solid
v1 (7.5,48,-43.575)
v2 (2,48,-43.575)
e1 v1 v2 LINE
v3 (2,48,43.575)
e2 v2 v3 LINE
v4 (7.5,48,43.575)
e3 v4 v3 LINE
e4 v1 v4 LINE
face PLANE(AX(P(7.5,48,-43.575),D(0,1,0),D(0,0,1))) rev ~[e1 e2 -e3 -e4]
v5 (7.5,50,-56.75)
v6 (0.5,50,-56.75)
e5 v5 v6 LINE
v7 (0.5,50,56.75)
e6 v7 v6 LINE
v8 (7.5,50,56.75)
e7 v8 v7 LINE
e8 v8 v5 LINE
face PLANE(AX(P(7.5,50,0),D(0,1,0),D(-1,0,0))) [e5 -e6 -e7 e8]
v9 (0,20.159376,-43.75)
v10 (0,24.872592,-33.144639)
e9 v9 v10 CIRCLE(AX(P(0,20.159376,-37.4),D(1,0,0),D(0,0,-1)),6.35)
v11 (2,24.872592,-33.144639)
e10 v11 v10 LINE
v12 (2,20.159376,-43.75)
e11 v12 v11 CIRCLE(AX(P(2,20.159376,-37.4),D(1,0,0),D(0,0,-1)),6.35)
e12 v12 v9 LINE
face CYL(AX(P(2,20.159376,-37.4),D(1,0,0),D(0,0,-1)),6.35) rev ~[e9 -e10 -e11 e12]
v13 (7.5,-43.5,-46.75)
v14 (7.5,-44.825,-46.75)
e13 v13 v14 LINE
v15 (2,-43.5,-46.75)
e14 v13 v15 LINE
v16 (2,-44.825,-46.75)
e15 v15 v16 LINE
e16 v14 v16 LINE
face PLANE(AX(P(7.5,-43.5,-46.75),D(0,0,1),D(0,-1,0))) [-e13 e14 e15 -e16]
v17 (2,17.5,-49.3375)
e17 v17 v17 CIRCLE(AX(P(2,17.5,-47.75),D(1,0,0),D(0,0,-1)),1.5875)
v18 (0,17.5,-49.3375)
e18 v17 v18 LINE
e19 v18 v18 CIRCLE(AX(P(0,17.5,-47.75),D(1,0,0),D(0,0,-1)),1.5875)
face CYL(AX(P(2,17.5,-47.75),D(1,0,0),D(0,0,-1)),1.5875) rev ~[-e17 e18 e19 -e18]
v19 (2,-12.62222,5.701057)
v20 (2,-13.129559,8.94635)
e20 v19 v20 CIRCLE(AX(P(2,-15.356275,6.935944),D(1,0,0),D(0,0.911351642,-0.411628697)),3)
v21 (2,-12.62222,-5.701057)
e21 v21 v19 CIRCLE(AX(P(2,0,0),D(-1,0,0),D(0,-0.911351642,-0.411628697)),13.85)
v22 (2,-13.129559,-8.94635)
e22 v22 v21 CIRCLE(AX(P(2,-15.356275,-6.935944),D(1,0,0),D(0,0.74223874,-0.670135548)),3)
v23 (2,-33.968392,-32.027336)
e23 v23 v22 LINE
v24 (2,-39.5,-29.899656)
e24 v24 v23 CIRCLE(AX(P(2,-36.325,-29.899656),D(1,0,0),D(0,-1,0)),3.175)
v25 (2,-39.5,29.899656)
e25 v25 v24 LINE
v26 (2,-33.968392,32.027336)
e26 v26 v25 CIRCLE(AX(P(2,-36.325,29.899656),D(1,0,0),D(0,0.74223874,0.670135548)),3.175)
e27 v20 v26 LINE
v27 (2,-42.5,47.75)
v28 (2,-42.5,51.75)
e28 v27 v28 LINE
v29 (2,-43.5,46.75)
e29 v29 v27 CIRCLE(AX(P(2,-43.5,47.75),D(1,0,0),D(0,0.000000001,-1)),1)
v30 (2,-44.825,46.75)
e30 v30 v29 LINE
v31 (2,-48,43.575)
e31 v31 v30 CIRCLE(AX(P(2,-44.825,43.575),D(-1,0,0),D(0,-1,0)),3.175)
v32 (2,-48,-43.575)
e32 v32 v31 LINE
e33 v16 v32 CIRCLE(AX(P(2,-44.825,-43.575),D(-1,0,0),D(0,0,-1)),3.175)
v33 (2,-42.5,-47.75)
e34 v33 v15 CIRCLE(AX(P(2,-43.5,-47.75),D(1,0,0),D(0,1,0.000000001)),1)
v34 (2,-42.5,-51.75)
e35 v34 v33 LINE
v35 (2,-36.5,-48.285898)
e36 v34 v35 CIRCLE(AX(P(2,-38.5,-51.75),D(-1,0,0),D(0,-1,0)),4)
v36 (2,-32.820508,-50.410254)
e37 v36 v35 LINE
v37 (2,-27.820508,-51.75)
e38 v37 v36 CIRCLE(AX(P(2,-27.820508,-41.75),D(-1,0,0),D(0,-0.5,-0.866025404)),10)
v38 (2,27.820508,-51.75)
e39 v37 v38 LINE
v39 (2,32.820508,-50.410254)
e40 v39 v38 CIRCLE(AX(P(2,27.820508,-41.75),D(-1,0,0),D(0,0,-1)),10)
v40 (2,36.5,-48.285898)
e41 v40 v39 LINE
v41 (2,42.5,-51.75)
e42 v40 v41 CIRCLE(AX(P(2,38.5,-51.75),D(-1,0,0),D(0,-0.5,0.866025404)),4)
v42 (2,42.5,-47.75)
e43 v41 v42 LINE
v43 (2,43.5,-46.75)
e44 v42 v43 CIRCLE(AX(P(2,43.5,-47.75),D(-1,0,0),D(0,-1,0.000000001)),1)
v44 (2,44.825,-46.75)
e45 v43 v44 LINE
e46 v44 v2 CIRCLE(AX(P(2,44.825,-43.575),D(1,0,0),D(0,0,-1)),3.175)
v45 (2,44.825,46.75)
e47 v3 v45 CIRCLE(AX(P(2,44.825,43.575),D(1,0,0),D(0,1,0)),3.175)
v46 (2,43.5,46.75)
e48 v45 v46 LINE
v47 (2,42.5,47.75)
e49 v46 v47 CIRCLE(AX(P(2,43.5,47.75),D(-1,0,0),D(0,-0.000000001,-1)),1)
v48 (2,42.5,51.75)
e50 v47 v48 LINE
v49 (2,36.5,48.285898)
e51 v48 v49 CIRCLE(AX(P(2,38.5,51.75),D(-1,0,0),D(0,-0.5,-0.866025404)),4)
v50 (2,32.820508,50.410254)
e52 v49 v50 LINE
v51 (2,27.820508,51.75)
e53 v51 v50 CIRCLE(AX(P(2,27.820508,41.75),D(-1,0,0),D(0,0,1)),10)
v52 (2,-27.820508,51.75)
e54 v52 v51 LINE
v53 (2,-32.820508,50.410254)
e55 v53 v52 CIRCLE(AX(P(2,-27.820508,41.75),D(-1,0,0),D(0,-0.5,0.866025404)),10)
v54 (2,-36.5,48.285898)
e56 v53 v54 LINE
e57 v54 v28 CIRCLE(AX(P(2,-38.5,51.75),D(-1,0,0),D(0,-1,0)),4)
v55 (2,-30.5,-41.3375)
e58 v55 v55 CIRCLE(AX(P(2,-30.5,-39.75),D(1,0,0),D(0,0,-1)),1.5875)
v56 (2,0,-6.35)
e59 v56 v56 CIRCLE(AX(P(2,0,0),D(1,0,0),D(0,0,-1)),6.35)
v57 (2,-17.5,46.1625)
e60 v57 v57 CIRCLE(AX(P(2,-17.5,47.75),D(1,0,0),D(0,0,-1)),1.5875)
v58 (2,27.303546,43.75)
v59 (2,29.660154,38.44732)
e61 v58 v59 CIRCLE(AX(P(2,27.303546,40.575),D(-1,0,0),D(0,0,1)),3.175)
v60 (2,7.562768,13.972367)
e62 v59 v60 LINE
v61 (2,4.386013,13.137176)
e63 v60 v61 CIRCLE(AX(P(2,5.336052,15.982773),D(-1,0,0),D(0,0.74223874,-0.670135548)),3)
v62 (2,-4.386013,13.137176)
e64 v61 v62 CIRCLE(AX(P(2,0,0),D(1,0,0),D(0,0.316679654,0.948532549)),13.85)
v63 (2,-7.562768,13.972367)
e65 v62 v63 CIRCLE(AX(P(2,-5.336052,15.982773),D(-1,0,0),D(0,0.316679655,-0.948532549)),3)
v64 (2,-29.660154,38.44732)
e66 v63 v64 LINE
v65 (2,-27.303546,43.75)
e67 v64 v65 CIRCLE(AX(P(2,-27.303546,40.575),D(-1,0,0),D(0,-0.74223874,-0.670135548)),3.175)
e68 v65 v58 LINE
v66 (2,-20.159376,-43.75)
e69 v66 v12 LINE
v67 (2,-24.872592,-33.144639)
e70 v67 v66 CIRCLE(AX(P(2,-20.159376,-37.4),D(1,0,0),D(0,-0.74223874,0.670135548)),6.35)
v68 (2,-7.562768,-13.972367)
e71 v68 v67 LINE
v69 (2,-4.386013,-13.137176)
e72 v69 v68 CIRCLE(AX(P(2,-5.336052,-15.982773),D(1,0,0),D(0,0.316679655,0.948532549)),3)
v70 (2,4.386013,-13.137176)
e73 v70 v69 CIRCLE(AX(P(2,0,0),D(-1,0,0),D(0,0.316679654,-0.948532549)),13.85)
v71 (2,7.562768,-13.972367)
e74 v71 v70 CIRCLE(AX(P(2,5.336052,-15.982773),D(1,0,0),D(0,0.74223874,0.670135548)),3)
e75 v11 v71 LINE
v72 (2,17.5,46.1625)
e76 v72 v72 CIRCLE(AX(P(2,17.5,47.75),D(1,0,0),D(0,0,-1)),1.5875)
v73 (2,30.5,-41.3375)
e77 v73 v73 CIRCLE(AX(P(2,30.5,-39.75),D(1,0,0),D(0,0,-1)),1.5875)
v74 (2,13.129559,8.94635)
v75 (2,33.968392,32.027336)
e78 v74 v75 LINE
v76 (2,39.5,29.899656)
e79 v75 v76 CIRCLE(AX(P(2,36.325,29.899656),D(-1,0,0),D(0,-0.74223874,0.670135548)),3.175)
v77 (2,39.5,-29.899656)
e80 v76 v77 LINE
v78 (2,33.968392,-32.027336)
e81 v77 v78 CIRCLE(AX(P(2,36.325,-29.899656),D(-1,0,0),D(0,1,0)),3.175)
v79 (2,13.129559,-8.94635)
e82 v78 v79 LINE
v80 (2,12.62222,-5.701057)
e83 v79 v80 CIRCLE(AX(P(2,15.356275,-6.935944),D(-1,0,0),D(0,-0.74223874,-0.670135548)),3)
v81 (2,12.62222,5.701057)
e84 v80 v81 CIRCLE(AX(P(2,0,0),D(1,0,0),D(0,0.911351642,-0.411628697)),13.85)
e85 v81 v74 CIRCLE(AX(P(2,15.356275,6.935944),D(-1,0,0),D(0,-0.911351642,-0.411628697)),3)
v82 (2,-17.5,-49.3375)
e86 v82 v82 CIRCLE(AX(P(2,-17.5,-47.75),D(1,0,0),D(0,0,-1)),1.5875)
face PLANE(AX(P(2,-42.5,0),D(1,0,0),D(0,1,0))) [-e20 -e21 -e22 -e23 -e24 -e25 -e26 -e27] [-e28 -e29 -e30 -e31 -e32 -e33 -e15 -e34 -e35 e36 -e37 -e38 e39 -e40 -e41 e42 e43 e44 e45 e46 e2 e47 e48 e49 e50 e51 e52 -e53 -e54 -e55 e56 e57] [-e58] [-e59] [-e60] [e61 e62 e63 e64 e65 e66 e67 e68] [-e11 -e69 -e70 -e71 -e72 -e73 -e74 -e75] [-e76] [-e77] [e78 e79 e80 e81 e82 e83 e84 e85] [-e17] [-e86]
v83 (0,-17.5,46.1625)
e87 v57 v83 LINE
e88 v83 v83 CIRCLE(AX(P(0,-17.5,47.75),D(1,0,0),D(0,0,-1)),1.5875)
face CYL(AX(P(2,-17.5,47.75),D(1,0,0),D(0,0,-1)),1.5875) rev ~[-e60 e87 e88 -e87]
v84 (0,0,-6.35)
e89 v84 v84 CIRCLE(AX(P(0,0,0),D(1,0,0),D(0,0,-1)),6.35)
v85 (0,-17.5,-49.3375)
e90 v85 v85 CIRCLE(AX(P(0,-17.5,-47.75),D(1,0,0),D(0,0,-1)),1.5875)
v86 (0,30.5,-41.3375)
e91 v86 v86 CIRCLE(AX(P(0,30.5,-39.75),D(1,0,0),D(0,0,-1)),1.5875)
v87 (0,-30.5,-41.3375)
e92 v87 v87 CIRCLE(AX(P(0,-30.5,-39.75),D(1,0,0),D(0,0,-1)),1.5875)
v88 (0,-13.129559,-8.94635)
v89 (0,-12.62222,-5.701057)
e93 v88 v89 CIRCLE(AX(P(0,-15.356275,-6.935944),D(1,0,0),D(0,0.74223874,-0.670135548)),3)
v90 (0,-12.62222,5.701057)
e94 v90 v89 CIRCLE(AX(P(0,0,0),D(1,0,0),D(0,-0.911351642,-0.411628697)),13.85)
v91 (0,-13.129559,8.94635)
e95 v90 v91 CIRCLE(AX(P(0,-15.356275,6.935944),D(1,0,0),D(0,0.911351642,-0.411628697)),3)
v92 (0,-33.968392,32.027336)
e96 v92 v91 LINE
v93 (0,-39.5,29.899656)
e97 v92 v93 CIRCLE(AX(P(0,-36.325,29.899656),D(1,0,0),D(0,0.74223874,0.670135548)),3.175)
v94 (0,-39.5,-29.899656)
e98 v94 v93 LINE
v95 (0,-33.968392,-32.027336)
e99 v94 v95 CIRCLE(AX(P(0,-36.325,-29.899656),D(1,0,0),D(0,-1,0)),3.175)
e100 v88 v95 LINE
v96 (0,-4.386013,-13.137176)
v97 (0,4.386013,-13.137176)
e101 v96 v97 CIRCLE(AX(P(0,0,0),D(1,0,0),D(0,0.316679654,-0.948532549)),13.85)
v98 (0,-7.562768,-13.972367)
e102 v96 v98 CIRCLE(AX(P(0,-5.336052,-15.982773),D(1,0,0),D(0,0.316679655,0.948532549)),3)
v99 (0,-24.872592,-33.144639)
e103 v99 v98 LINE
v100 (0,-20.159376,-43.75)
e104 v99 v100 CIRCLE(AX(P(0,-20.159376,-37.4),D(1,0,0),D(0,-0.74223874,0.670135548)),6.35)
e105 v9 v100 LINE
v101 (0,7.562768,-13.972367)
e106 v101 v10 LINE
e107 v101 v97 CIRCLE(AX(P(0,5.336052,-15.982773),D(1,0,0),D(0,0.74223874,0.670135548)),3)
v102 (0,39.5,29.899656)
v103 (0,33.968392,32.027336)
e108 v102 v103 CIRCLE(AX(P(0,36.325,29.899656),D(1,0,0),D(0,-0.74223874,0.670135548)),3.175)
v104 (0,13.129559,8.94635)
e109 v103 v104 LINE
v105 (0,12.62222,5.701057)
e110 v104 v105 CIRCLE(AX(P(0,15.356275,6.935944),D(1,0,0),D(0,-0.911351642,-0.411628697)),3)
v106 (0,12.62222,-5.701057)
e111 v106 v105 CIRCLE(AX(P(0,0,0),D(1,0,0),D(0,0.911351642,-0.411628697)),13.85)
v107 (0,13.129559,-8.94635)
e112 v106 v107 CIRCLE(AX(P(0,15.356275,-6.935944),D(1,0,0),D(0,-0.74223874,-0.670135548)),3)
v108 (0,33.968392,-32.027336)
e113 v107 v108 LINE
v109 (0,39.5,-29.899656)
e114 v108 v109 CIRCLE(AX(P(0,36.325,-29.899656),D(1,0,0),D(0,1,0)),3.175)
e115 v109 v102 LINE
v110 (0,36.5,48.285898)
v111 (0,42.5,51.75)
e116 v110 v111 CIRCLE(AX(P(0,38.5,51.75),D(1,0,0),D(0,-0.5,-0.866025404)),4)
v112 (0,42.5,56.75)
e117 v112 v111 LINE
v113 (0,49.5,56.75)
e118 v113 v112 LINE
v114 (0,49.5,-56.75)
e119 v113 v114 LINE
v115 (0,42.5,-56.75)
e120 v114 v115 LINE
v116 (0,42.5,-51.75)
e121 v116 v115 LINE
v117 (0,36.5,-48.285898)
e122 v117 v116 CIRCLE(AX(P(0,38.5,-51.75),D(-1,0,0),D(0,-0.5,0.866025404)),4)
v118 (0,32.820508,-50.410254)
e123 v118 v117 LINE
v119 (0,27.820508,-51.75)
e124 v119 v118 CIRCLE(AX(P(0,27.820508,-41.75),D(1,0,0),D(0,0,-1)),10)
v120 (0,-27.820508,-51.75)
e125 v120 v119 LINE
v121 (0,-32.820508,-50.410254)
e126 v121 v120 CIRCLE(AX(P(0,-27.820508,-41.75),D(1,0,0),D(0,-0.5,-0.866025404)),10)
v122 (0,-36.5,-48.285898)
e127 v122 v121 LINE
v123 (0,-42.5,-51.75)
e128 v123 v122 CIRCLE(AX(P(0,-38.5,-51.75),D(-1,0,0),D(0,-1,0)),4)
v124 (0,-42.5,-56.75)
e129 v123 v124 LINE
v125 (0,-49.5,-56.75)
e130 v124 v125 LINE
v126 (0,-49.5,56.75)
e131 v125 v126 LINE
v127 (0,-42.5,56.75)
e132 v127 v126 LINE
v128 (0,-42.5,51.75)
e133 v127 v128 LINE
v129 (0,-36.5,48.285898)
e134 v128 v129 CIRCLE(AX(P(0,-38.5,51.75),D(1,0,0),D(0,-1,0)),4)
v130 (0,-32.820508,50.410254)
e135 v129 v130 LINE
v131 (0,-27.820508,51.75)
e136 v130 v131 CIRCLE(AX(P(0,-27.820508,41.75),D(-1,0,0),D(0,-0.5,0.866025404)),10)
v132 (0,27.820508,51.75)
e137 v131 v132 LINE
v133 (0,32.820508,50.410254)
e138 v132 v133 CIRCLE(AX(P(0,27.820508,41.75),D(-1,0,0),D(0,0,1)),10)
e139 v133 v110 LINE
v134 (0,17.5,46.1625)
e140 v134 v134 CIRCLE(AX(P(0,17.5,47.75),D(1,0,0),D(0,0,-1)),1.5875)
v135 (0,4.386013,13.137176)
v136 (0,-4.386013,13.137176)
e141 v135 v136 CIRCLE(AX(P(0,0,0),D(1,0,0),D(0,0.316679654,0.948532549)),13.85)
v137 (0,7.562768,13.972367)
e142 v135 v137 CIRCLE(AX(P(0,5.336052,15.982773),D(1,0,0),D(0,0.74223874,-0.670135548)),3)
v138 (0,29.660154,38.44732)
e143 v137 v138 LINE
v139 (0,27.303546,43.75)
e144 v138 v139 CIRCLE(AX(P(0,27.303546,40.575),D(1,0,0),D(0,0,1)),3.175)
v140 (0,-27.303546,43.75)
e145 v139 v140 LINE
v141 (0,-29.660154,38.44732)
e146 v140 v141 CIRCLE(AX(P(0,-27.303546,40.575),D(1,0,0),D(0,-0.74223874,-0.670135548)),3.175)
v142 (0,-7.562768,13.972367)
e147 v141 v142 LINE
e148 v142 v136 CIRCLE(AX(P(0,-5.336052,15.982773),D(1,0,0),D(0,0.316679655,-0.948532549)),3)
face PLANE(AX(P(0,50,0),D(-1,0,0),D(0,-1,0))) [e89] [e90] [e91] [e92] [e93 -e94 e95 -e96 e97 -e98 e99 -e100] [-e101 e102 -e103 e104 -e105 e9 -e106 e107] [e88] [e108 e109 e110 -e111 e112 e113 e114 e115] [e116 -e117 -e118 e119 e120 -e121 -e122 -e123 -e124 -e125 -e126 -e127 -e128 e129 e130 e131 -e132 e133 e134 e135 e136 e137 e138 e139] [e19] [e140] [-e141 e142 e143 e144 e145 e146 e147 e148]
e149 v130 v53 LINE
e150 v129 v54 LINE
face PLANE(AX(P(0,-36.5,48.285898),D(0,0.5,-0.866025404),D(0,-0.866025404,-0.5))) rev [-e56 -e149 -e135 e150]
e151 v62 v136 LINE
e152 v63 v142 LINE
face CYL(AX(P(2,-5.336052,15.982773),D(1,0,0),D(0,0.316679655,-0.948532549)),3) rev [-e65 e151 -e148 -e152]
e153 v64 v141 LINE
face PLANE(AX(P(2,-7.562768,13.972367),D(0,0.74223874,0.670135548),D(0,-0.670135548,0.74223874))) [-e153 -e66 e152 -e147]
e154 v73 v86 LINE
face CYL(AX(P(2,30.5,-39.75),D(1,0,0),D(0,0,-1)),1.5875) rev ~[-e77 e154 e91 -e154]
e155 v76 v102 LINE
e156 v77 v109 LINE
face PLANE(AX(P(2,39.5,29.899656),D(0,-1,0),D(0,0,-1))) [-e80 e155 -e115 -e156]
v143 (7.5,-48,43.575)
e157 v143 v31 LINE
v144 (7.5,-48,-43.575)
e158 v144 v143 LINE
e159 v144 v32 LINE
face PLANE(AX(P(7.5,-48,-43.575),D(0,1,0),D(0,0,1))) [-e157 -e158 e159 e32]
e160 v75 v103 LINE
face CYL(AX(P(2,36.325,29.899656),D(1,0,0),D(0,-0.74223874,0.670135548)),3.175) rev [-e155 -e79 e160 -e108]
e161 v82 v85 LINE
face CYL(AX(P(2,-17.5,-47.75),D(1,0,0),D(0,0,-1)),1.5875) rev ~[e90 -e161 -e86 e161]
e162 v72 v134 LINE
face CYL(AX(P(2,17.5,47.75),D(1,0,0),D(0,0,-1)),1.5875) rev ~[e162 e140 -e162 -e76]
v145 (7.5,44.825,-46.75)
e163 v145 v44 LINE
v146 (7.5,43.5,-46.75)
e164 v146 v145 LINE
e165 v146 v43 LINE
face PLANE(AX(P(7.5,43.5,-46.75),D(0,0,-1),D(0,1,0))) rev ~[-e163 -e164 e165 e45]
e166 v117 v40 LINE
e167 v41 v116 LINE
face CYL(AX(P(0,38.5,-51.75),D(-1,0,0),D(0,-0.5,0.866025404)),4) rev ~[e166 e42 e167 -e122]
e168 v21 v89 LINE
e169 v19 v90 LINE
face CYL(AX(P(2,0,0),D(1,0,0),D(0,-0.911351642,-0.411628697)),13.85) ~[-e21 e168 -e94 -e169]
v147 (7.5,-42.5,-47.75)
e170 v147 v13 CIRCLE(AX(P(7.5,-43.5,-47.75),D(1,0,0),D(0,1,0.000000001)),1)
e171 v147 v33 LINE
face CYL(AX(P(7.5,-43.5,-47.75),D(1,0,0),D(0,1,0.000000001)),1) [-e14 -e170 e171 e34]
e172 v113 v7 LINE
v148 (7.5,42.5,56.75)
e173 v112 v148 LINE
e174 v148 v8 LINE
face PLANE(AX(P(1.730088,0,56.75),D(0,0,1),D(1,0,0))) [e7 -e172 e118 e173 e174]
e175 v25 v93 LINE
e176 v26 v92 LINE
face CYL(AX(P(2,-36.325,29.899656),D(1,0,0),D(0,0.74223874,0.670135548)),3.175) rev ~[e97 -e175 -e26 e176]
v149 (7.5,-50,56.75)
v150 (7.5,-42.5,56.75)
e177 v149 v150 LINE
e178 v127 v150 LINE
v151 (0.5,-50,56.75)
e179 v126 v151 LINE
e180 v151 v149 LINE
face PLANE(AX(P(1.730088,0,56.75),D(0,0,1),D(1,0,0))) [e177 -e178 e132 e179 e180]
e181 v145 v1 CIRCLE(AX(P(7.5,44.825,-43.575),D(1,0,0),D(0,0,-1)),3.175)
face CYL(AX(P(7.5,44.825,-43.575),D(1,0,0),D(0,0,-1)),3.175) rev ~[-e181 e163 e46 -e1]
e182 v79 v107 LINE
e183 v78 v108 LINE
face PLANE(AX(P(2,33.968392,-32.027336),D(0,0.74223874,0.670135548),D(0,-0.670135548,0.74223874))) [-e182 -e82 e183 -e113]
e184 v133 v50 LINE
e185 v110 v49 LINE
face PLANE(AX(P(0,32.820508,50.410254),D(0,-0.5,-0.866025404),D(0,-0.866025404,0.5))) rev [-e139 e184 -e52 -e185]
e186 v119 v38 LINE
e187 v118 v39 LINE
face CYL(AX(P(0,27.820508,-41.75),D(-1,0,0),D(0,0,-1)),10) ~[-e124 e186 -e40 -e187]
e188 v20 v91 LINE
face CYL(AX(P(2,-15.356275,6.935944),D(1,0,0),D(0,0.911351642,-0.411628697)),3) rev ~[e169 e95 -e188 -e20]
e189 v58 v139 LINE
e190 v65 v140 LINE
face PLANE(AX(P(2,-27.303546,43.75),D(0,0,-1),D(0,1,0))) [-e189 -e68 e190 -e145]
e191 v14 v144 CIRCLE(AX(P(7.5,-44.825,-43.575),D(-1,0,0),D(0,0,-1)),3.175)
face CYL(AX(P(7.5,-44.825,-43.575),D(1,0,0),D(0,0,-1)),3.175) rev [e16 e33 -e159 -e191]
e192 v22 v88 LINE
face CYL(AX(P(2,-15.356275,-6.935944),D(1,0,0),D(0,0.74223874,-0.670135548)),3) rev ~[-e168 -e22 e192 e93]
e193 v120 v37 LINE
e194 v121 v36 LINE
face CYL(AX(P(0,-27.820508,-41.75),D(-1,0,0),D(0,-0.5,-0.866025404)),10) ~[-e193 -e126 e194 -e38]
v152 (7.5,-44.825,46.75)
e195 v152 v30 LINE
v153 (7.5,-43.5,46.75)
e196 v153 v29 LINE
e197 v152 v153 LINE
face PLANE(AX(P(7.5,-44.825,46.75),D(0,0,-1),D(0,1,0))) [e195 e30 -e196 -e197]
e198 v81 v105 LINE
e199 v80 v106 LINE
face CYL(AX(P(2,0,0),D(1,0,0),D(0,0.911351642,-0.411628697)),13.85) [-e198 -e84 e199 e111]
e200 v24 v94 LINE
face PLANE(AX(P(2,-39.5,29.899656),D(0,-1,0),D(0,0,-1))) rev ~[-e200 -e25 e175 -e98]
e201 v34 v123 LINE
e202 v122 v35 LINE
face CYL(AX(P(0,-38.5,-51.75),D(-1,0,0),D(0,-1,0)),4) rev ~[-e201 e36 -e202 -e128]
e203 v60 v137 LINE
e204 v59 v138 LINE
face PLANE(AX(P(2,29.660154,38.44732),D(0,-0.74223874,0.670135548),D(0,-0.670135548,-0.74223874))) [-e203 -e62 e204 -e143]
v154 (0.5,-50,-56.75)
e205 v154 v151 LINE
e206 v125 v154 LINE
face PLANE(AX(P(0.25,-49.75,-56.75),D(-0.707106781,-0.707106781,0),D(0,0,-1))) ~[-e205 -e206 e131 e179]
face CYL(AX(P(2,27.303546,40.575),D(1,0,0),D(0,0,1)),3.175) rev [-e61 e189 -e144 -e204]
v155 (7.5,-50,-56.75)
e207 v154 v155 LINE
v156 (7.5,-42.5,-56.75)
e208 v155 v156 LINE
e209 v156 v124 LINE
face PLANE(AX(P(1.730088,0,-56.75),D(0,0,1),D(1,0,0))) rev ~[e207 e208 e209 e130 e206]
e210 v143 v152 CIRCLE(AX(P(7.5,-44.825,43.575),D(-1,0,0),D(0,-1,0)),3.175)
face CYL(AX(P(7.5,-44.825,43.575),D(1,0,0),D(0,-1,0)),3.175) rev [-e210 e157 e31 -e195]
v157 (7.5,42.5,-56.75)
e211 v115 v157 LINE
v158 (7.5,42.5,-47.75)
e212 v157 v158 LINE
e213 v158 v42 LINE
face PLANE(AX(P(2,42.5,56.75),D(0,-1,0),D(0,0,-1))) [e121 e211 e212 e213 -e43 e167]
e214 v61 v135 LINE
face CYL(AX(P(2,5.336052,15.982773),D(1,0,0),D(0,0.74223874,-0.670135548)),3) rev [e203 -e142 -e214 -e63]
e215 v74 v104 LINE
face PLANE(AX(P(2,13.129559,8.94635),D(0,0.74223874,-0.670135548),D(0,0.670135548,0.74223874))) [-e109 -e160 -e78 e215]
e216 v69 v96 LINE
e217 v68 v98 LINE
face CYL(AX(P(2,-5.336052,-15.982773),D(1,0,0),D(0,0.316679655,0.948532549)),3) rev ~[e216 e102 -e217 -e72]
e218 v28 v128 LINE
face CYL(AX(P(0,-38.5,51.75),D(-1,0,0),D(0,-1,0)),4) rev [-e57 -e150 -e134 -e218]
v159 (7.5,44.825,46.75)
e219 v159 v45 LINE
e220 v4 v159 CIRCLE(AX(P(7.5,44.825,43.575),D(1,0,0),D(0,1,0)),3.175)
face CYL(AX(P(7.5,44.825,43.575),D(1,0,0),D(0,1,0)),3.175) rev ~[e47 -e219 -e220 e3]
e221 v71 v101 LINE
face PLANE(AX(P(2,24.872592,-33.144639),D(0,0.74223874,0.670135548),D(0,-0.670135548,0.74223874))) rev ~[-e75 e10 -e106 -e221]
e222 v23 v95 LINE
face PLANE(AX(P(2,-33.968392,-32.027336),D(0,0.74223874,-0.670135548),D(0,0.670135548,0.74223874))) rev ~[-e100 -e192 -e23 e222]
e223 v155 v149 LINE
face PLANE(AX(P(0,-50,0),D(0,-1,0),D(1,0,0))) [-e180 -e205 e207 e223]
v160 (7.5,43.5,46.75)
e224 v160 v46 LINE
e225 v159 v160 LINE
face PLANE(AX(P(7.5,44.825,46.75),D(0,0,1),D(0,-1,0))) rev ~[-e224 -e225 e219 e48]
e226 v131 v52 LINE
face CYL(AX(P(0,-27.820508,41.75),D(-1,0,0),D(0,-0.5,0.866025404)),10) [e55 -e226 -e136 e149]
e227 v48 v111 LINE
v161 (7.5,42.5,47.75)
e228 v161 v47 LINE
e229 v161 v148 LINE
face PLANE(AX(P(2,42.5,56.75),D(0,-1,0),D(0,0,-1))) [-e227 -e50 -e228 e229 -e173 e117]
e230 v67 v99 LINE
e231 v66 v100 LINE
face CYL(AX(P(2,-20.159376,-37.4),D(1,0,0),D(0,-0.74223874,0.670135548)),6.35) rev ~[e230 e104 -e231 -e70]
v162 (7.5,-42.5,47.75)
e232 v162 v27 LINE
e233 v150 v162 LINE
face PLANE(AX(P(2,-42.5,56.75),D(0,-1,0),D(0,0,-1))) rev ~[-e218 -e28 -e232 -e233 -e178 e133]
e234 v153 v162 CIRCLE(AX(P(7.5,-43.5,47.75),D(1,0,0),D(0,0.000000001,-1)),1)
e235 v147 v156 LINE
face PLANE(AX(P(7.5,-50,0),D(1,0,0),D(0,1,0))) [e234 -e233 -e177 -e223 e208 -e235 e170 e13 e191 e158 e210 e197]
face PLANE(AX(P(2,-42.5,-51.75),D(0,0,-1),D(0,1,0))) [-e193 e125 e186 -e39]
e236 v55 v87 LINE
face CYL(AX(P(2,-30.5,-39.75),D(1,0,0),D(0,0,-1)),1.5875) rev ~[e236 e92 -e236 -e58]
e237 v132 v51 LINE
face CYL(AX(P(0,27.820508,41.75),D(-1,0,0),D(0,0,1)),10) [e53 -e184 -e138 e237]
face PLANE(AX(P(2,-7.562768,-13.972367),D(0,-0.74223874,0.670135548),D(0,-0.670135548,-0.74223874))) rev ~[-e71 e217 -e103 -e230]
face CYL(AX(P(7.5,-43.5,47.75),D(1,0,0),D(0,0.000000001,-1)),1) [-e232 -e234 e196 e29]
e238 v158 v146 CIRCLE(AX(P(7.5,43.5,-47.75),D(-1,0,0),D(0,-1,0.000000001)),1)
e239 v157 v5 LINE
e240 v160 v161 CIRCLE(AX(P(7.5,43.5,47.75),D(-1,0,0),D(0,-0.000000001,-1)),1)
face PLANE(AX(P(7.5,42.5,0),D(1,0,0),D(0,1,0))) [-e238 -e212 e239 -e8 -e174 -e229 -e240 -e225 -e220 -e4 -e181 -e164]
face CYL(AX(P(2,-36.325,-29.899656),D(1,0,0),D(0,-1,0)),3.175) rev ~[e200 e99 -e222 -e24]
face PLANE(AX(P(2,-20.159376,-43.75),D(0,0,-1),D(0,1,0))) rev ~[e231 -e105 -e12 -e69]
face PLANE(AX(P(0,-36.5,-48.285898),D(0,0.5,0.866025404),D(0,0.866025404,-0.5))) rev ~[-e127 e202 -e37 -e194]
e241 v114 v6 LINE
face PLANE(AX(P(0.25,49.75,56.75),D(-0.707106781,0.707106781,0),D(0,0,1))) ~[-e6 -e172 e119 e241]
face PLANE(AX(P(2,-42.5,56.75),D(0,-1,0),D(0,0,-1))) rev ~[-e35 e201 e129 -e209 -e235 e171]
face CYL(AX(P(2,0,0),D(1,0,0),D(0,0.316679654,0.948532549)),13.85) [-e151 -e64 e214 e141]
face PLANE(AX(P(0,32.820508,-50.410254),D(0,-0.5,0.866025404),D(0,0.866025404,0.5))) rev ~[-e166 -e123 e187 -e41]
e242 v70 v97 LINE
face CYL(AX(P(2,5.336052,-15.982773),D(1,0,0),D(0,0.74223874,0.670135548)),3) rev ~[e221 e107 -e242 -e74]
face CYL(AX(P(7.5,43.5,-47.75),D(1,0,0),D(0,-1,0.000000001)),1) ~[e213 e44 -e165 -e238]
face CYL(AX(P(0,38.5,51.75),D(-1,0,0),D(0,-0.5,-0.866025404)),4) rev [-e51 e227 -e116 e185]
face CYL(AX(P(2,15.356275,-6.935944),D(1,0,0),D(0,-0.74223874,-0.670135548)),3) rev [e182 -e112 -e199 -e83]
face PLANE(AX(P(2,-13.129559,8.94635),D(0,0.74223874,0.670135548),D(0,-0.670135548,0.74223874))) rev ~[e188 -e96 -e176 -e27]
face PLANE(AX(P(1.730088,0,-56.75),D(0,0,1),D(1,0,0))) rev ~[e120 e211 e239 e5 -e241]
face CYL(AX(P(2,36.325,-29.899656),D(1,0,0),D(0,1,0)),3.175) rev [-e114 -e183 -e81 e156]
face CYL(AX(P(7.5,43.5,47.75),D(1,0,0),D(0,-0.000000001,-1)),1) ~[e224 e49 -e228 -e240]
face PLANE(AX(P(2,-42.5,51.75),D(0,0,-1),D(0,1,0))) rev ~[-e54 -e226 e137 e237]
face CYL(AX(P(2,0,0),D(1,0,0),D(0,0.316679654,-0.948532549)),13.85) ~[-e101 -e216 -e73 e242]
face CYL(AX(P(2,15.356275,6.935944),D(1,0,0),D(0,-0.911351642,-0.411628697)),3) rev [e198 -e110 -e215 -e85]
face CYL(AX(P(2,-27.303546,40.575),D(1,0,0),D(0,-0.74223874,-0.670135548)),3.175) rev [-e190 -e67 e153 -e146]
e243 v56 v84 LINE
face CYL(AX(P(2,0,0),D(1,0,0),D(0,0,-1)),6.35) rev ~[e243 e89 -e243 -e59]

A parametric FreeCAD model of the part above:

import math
import FreeCAD as App
import Part
import Sketcher

V = App.Vector
Q = App.Units.Quantity


def edges_at(feature, points):
    """Names of the edges that pass closest to the given points."""
    edges = feature.Shape.Edges
    near = lambda p: min(range(len(edges)), key=lambda i: edges[i].distToShape(Part.Vertex(*p))[0])
    return sorted({f"Edge{near(p) + 1}" for p in points})


def add_polygon(sketch, points):
    """Adds a closed chain of lines whose ends are joined by coincident constraints."""
    first, n = sketch.GeometryCount, len(points)
    for a, b in zip(points, points[1:] + points[:1]):
        sketch.addGeometry(Part.LineSegment(App.Vector(*a, 0), App.Vector(*b, 0)), False)
    for i in range(n):
        sketch.addConstraint(Sketcher.Constraint("Coincident", first + i, 2, first + (i + 1) % n, 1))

doc = App.newDocument("Part")
body = doc.addObject("PartDesign::Body", "Body")

sketch1 = body.newObject("Sketcher::SketchObject", "Sketch")
sketch1.AttachmentSupport = (doc.getObject("XY_Plane"), [""])
sketch1.MapMode = "FlatFace"
add_polygon(sketch1, [(0, 50), (0, -50), (8, -50), (8, -42), (2, -42), (2, 42), (8, 42), (8, 50)])
sketch1.addConstraint(Sketcher.Constraint("Vertical", 0))
sketch1.addConstraint(Sketcher.Constraint("Horizontal", 1))
sketch1.addConstraint(Sketcher.Constraint("Vertical", 2))
sketch1.addConstraint(Sketcher.Constraint("Horizontal", 3))
sketch1.addConstraint(Sketcher.Constraint("Vertical", 4))
sketch1.addConstraint(Sketcher.Constraint("Horizontal", 5))
sketch1.addConstraint(Sketcher.Constraint("Vertical", 6))
sketch1.addConstraint(Sketcher.Constraint("Horizontal", 7))
sketch1.addConstraint(Sketcher.Constraint("Symmetric", 0, 2, 7, 2, -1, 1))
sketch1.addConstraint(Sketcher.Constraint("Symmetric", 2, 2, 5, 2, -1))
sketch1.addConstraint(Sketcher.Constraint("Equal", 7, 2))
sketch1.addConstraint(Sketcher.Constraint("DistanceY", 0, 2, 0, 1, Q("100 mm")))
sketch1.addConstraint(Sketcher.Constraint("DistanceY", 4, 1, 4, 2, Q("85 mm")))
sketch1.addConstraint(Sketcher.Constraint("DistanceX", 3, 2, 3, 1, Q("5.5 mm")))
pad1 = body.newObject("PartDesign::Pad", "Pad")
pad1.Profile = sketch1
pad1.Length = 113.5
pad1.Midplane = True

sketch2 = body.newObject("Sketcher::SketchObject", "Sketch001")
sketch2.AttachmentSupport = (doc.getObject("YZ_Plane"), [""])
sketch2.MapMode = "FlatFace"
sketch2.AttachmentOffset = App.Placement(V(0, 0, 2), App.Rotation())
add_polygon(sketch2, [(42.5, 56.8), (-42.5, 56.8), (-42.5, 51.8), (42.5, 51.8)])
add_polygon(sketch2, [(42.5, -51.8), (-42.5, -51.8), (-42.5, -56.8), (42.5, -56.8)])
sketch2.addGeometry(Part.Circle(V(17.5, 47.8, 0), V(0, 0, 1), 1.6), False)
sketch2.addGeometry(Part.Circle(V(-17.5, 47.8, 0), V(0, 0, 1), 1.6), False)
sketch2.addGeometry(Part.Circle(V(17.5, -47.8, 0), V(0, 0, 1), 1.6), False)
sketch2.addGeometry(Part.Circle(V(-17.5, -47.8, 0), V(0, 0, 1), 1.6), False)
sketch2.addConstraint(Sketcher.Constraint("Horizontal", 0))
sketch2.addConstraint(Sketcher.Constraint("Vertical", 1))
sketch2.addConstraint(Sketcher.Constraint("Horizontal", 2))
sketch2.addConstraint(Sketcher.Constraint("Vertical", 3))
sketch2.addConstraint(Sketcher.Constraint("Horizontal", 4))
sketch2.addConstraint(Sketcher.Constraint("Vertical", 5))
sketch2.addConstraint(Sketcher.Constraint("Horizontal", 6))
sketch2.addConstraint(Sketcher.Constraint("Vertical", 7))
sketch2.addConstraint(Sketcher.Constraint("Equal", 8, 9))
sketch2.addConstraint(Sketcher.Constraint("Equal", 9, 10))
sketch2.addConstraint(Sketcher.Constraint("Equal", 10, 11))
sketch2.addConstraint(Sketcher.Constraint("Symmetric", 9, 3, 10, 3, -1, 1))
sketch2.addConstraint(Sketcher.Constraint("Symmetric", 8, 3, 11, 3, -1, 1))
sketch2.addConstraint(Sketcher.Constraint("Symmetric", 2, 2, 4, 2, -1, 1))
sketch2.addConstraint(Sketcher.Constraint("Symmetric", 0, 2, 6, 2, -1, 1))
sketch2.addConstraint(Sketcher.Constraint("Symmetric", 8, 3, 9, 3, -2))
sketch2.addConstraint(Sketcher.Constraint("Vertical", 1, 2, 4, 2))
sketch2.addConstraint(Sketcher.Constraint("DistanceX", 0, 2, 0, 1, Q("85 mm")))
sketch2.addConstraint(Sketcher.Constraint("DistanceY", 1, 2, 1, 1, Q("5 mm")))
sketch2.addConstraint(Sketcher.Constraint("Diameter", 8, Q("3.175 mm")))
sketch2.addConstraint(Sketcher.Constraint("DistanceX", 9, 3, 8, 3, Q("35 mm")))
sketch2.addConstraint(Sketcher.Constraint("DistanceY", 9, 3, 0, 2, Q("9 mm")))
sketch2.addConstraint(Sketcher.Constraint("DistanceY", 10, 3, 8, 3, Q("95.5 mm")))
pocket1 = body.newObject("PartDesign::Pocket", "Pocket")
pocket1.Profile = sketch2
pocket1.Length = 2

sketch3 = body.newObject("Sketcher::SketchObject", "Sketch002")
sketch3.AttachmentSupport = (doc.getObject("YZ_Plane"), [""])
sketch3.MapMode = "FlatFace"
sketch3.AttachmentOffset = App.Placement(V(0, 0, 2), App.Rotation())
sketch3.addGeometry(Part.Circle(V(0, 0, 0), V(0, 0, 1), 6.3), False)
sketch3.addGeometry(Part.Circle(V(30.5, -39.8, 0), V(0, 0, 1), 1.6), False)
sketch3.addGeometry(Part.Circle(V(-30.5, -39.8, 0), V(0, 0, 1), 1.6), False)
sketch3.addGeometry(Part.LineSegment(V(-39.5, 29.9, 0), V(-39.5, -29.9, 0)), False)
sketch3.addGeometry(Part.ArcOfCircle(Part.Circle(V(-36.3, -29.9, 0), V(0, 0, 1), 3.2), math.radians(180), math.radians(318)), False)
sketch3.addGeometry(Part.LineSegment(V(-34, -32, 0), V(-13.1, -8.9, 0)), False)
sketch3.addGeometry(Part.ArcOfCircle(Part.Circle(V(-15.4, -6.9, 0), V(0, 0, 1), 3), math.radians(-42), math.radians(24)), False)
sketch3.addGeometry(Part.ArcOfCircle(Part.Circle(V(0, 0, 0), V(0, 0, 1), 13.9), math.radians(156), math.radians(204)), False)
sketch3.addGeometry(Part.ArcOfCircle(Part.Circle(V(-15.4, 6.9, 0), V(0, 0, 1), 3), math.radians(-24), math.radians(42)), False)
sketch3.addGeometry(Part.LineSegment(V(-13.1, 8.9, 0), V(-34, 32, 0)), False)
sketch3.addGeometry(Part.ArcOfCircle(Part.Circle(V(-36.3, 29.9, 0), V(0, 0, 1), 3.2), math.radians(42), math.radians(180)), False)
sketch3.addGeometry(Part.LineSegment(V(27.3, 43.8, 0), V(-27.3, 43.8, 0)), False)
sketch3.addGeometry(Part.ArcOfCircle(Part.Circle(V(-27.3, 40.6, 0), V(0, 0, 1), 3.2), math.radians(90), math.radians(222)), False)
sketch3.addGeometry(Part.LineSegment(V(-29.7, 38.4, 0), V(-7.6, 14, 0)), False)
sketch3.addGeometry(Part.ArcOfCircle(Part.Circle(V(-5.3, 16, 0), V(0, 0, 1), 3), math.radians(-138), math.radians(-72)), False)
sketch3.addGeometry(Part.ArcOfCircle(Part.Circle(V(0, 0, 0), V(0, 0, 1), 13.9), math.radians(72), math.radians(108)), False)
sketch3.addGeometry(Part.ArcOfCircle(Part.Circle(V(5.3, 16, 0), V(0, 0, 1), 3), math.radians(-108), math.radians(-42)), False)
sketch3.addGeometry(Part.LineSegment(V(7.6, 14, 0), V(29.7, 38.4, 0)), False)
sketch3.addGeometry(Part.ArcOfCircle(Part.Circle(V(27.3, 40.6, 0), V(0, 0, 1), 3.2), math.radians(-42), math.radians(90)), False)
sketch3.addGeometry(Part.LineSegment(V(39.5, -29.9, 0), V(39.5, 29.9, 0)), False)
sketch3.addGeometry(Part.ArcOfCircle(Part.Circle(V(36.3, 29.9, 0), V(0, 0, 1), 3.2), math.radians(0), math.radians(138)), False)
sketch3.addGeometry(Part.LineSegment(V(34, 32, 0), V(13.1, 8.9, 0)), False)
sketch3.addGeometry(Part.ArcOfCircle(Part.Circle(V(15.4, 6.9, 0), V(0, 0, 1), 3), math.radians(138), math.radians(204)), False)
sketch3.addGeometry(Part.ArcOfCircle(Part.Circle(V(0, 0, 0), V(0, 0, 1), 13.9), math.radians(-24), math.radians(24)), False)
sketch3.addGeometry(Part.ArcOfCircle(Part.Circle(V(15.4, -6.9, 0), V(0, 0, 1), 3), math.radians(156), math.radians(222)), False)
sketch3.addGeometry(Part.LineSegment(V(13.1, -8.9, 0), V(34, -32, 0)), False)
sketch3.addGeometry(Part.ArcOfCircle(Part.Circle(V(36.3, -29.9, 0), V(0, 0, 1), 3.2), math.radians(-138), math.radians(0)), False)
sketch3.addGeometry(Part.LineSegment(V(-20.2, -43.8, 0), V(20.2, -43.8, 0)), False)
sketch3.addGeometry(Part.ArcOfCircle(Part.Circle(V(20.2, -37.4, 0), V(0, 0, 1), 6.3), math.radians(-90), math.radians(42)), False)
sketch3.addGeometry(Part.LineSegment(V(24.9, -33.1, 0), V(7.6, -14, 0)), False)
sketch3.addGeometry(Part.ArcOfCircle(Part.Circle(V(5.3, -16, 0), V(0, 0, 1), 3), math.radians(42), math.radians(108)), False)
sketch3.addGeometry(Part.ArcOfCircle(Part.Circle(V(0, 0, 0), V(0, 0, 1), 13.9), math.radians(-108), math.radians(-72)), False)
sketch3.addGeometry(Part.ArcOfCircle(Part.Circle(V(-5.3, -16, 0), V(0, 0, 1), 3), math.radians(72), math.radians(138)), False)
sketch3.addGeometry(Part.LineSegment(V(-7.6, -14, 0), V(-24.9, -33.1, 0)), False)
sketch3.addGeometry(Part.ArcOfCircle(Part.Circle(V(-20.2, -37.4, 0), V(0, 0, 1), 6.3), math.radians(138), math.radians(270)), False)
sketch3.addConstraint(Sketcher.Constraint("Tangent", 3, 2, 4, 1))
sketch3.addConstraint(Sketcher.Constraint("Tangent", 4, 2, 5, 1))
sketch3.addConstraint(Sketcher.Constraint("Tangent", 5, 2, 6, 1))
sketch3.addConstraint(Sketcher.Constraint("Tangent", 6, 2, 7, 2))
sketch3.addConstraint(Sketcher.Constraint("Tangent", 7, 1, 8, 1))
sketch3.addConstraint(Sketcher.Constraint("Tangent", 8, 2, 9, 1))
sketch3.addConstraint(Sketcher.Constraint("Tangent", 9, 2, 10, 1))
sketch3.addConstraint(Sketcher.Constraint("Tangent", 10, 2, 3, 1))
sketch3.addConstraint(Sketcher.Constraint("Tangent", 11, 2, 12, 1))
sketch3.addConstraint(Sketcher.Constraint("Tangent", 12, 2, 13, 1))
sketch3.addConstraint(Sketcher.Constraint("Tangent", 13, 2, 14, 1))
sketch3.addConstraint(Sketcher.Constraint("Tangent", 14, 2, 15, 2))
sketch3.addConstraint(Sketcher.Constraint("Tangent", 15, 1, 16, 1))
sketch3.addConstraint(Sketcher.Constraint("Tangent", 16, 2, 17, 1))
sketch3.addConstraint(Sketcher.Constraint("Tangent", 17, 2, 18, 1))
sketch3.addConstraint(Sketcher.Constraint("Tangent", 18, 2, 11, 1))
sketch3.addConstraint(Sketcher.Constraint("Tangent", 19, 2, 20, 1))
sketch3.addConstraint(Sketcher.Constraint("Tangent", 20, 2, 21, 1))
sketch3.addConstraint(Sketcher.Constraint("Tangent", 21, 2, 22, 1))
sketch3.addConstraint(Sketcher.Constraint("Tangent", 22, 2, 23, 2))
sketch3.addConstraint(Sketcher.Constraint("Tangent", 23, 1, 24, 1))
sketch3.addConstraint(Sketcher.Constraint("Tangent", 24, 2, 25, 1))
sketch3.addConstraint(Sketcher.Constraint("Tangent", 25, 2, 26, 1))
sketch3.addConstraint(Sketcher.Constraint("Tangent", 26, 2, 19, 1))
sketch3.addConstraint(Sketcher.Constraint("Tangent", 27, 2, 28, 1))
sketch3.addConstraint(Sketcher.Constraint("Tangent", 28, 2, 29, 1))
sketch3.addConstraint(Sketcher.Constraint("Tangent", 29, 2, 30, 1))
sketch3.addConstraint(Sketcher.Constraint("Tangent", 30, 2, 31, 2))
sketch3.addConstraint(Sketcher.Constraint("Tangent", 31, 1, 32, 1))
sketch3.addConstraint(Sketcher.Constraint("Tangent", 32, 2, 33, 1))
sketch3.addConstraint(Sketcher.Constraint("Tangent", 33, 2, 34, 1))
sketch3.addConstraint(Sketcher.Constraint("Tangent", 34, 2, 27, 1))
sketch3.addConstraint(Sketcher.Constraint("Vertical", 3))
sketch3.addConstraint(Sketcher.Constraint("Horizontal", 11))
sketch3.addConstraint(Sketcher.Constraint("Vertical", 19))
sketch3.addConstraint(Sketcher.Constraint("Horizontal", 27))
sketch3.addConstraint(Sketcher.Constraint("Coincident", 0, 3, -1, 1))
sketch3.addConstraint(Sketcher.Constraint("Coincident", 7, 3, -1, 1))
sketch3.addConstraint(Sketcher.Constraint("Coincident", 15, 3, -1, 1))
sketch3.addConstraint(Sketcher.Constraint("Coincident", 23, 3, -1, 1))
sketch3.addConstraint(Sketcher.Constraint("Coincident", 31, 3, -1, 1))
sketch3.addConstraint(Sketcher.Constraint("Equal", 1, 2))
sketch3.addConstraint(Sketcher.Constraint("Equal", 6, 8))
sketch3.addConstraint(Sketcher.Constraint("Equal", 4, 10))
sketch3.addConstraint(Sketcher.Constraint("Equal", 10, 12))
sketch3.addConstraint(Sketcher.Constraint("Equal", 8, 14))
sketch3.addConstraint(Sketcher.Constraint("Equal", 7, 15))
sketch3.addConstraint(Sketcher.Constraint("Equal", 14, 16))
sketch3.addConstraint(Sketcher.Constraint("Equal", 12, 18))
sketch3.addConstraint(Sketcher.Constraint("Equal", 18, 20))
sketch3.addConstraint(Sketcher.Constraint("Equal", 16, 22))
sketch3.addConstraint(Sketcher.Constraint("Equal", 15, 23))
sketch3.addConstraint(Sketcher.Constraint("Equal", 22, 24))
sketch3.addConstraint(Sketcher.Constraint("Equal", 20, 26))
sketch3.addConstraint(Sketcher.Constraint("Equal", 0, 28))
sketch3.addConstraint(Sketcher.Constraint("Equal", 24, 30))
sketch3.addConstraint(Sketcher.Constraint("Equal", 23, 31))
sketch3.addConstraint(Sketcher.Constraint("Equal", 30, 32))
sketch3.addConstraint(Sketcher.Constraint("Equal", 28, 34))
sketch3.addConstraint(Sketcher.Constraint("Symmetric", 4, 3, 20, 3, -1, 1))
sketch3.addConstraint(Sketcher.Constraint("Symmetric", 8, 2, 24, 2, -1, 1))
sketch3.addConstraint(Sketcher.Constraint("Symmetric", 13, 2, 29, 2, -1, 1))
sketch3.addConstraint(Sketcher.Constraint("Symmetric", 16, 2, 32, 2, -1, 1))
sketch3.addConstraint(Sketcher.Constraint("Symmetric", 1, 3, 2, 3, -2))
sketch3.addConstraint(Sketcher.Constraint("Symmetric", 13, 2, 16, 2, -2))
sketch3.addConstraint(Sketcher.Constraint("Symmetric", 9, 2, 20, 2, -2))
sketch3.addConstraint(Sketcher.Constraint("Parallel", 9, 13))
sketch3.addConstraint(Sketcher.Constraint("Parallel", 5, 17))
sketch3.addConstraint(Sketcher.Constraint("Radius", 6, Q("3 mm")))
sketch3.addConstraint(Sketcher.Constraint("Diameter", 0, Q("12.7 mm")))
sketch3.addConstraint(Sketcher.Constraint("Radius", 7, Q("13.85 mm")))
sketch3.addConstraint(Sketcher.Constraint("Diameter", 1, Q("3.175 mm")))
sketch3.addConstraint(Sketcher.Constraint("Radius", 4, Q("3.175 mm")))
sketch3.addConstraint(Sketcher.Constraint("DistanceX", 2, 3, 1, 3, Q("61 mm")))
sketch3.addConstraint(Sketcher.Constraint("DistanceX", 3, 2, 2, 3, Q("9 mm")))
sketch3.addConstraint(Sketcher.Constraint("DistanceY", 27, 2, 1, 3, Q("4 mm")))
sketch3.addConstraint(Sketcher.Constraint("DistanceY", 28, 3, -1, 1, Q("37.4 mm")))
sketch3.addConstraint(Sketcher.Constraint("DistanceY", -1, 1, 11, 2, Q("43.75 mm")))
sketch3.addConstraint(Sketcher.Constraint("DistanceY", 6, 2, 8, 3, Q("12.637001 mm")))
sketch3.addConstraint(Sketcher.Constraint("DistanceX", 27, 1, 27, 2, Q("40.318751 mm")))
sketch3.addConstraint(Sketcher.Constraint("DistanceY", 3, 2, 3, 1, Q("59.799312 mm")))
pocket2 = body.newObject("PartDesign::Pocket", "Pocket001")
pocket2.Profile = sketch3
pocket2.Type = "ThroughAll"
doc.recompute()

chamfer = body.newObject("PartDesign::Chamfer", "Chamfer")
chamfer.Base = (pocket2, edges_at(pocket2, [(0, -50, 0), (0, 50, 0)]))
chamfer.Size = 0.5

sketch4 = body.newObject("Sketcher::SketchObject", "Sketch003")
sketch4.AttachmentSupport = (doc.getObject("YZ_Plane"), [""])
sketch4.MapMode = "FlatFace"
sketch4.AttachmentOffset = App.Placement(V(0, 0, 7.5), App.Rotation())
sketch4.addGeometry(Part.LineSegment(V(-48, 43.6, 0), V(-48, -43.6, 0)), False)
sketch4.addGeometry(Part.ArcOfCircle(Part.Circle(V(-44.8, -43.6, 0), V(0, 0, 1), 3.2), math.radians(-180), math.radians(-90)), False)
sketch4.addGeometry(Part.LineSegment(V(-44.8, -46.8, 0), V(-43.5, -46.8, 0)), False)
sketch4.addGeometry(Part.ArcOfCircle(Part.Circle(V(-43.5, -47.8, 0), V(0, 0, 1), 1), math.radians(0), math.radians(90)), False)
sketch4.addGeometry(Part.LineSegment(V(-42.5, -47.8, 0), V(-42.5, 47.8, 0)), False)
sketch4.addGeometry(Part.ArcOfCircle(Part.Circle(V(-43.5, 47.8, 0), V(0, 0, 1), 1), math.radians(-90), math.radians(0)), False)
sketch4.addGeometry(Part.LineSegment(V(-43.5, 46.8, 0), V(-44.8, 46.8, 0)), False)
sketch4.addGeometry(Part.ArcOfCircle(Part.Circle(V(-44.8, 43.6, 0), V(0, 0, 1), 3.2), math.radians(90), math.radians(180)), False)
sketch4.addGeometry(Part.LineSegment(V(44.8, 46.8, 0), V(43.5, 46.8, 0)), False)
sketch4.addGeometry(Part.ArcOfCircle(Part.Circle(V(43.5, 47.8, 0), V(0, 0, 1), 1), math.radians(-180), math.radians(-90)), False)
sketch4.addGeometry(Part.LineSegment(V(42.5, 47.8, 0), V(42.5, -47.8, 0)), False)
sketch4.addGeometry(Part.ArcOfCircle(Part.Circle(V(43.5, -47.8, 0), V(0, 0, 1), 1), math.radians(90), math.radians(180)), False)
sketch4.addGeometry(Part.LineSegment(V(43.5, -46.8, 0), V(44.8, -46.8, 0)), False)
sketch4.addGeometry(Part.ArcOfCircle(Part.Circle(V(44.8, -43.6, 0), V(0, 0, 1), 3.2), math.radians(-90), math.radians(0)), False)
sketch4.addGeometry(Part.LineSegment(V(48, -43.6, 0), V(48, 43.6, 0)), False)
sketch4.addGeometry(Part.ArcOfCircle(Part.Circle(V(44.8, 43.6, 0), V(0, 0, 1), 3.2), math.radians(0), math.radians(90)), False)
sketch4.addConstraint(Sketcher.Constraint("Tangent", 0, 2, 1, 1))
sketch4.addConstraint(Sketcher.Constraint("Tangent", 1, 2, 2, 1))
sketch4.addConstraint(Sketcher.Constraint("Tangent", 2, 2, 3, 2))
sketch4.addConstraint(Sketcher.Constraint("Tangent", 3, 1, 4, 1))
sketch4.addConstraint(Sketcher.Constraint("Tangent", 4, 2, 5, 2))
sketch4.addConstraint(Sketcher.Constraint("Tangent", 5, 1, 6, 1))
sketch4.addConstraint(Sketcher.Constraint("Tangent", 6, 2, 7, 1))
sketch4.addConstraint(Sketcher.Constraint("Tangent", 7, 2, 0, 1))
sketch4.addConstraint(Sketcher.Constraint("Tangent", 8, 2, 9, 2))
sketch4.addConstraint(Sketcher.Constraint("Tangent", 9, 1, 10, 1))
sketch4.addConstraint(Sketcher.Constraint("Tangent", 10, 2, 11, 2))
sketch4.addConstraint(Sketcher.Constraint("Tangent", 11, 1, 12, 1))
sketch4.addConstraint(Sketcher.Constraint("Tangent", 12, 2, 13, 1))
sketch4.addConstraint(Sketcher.Constraint("Tangent", 13, 2, 14, 1))
sketch4.addConstraint(Sketcher.Constraint("Tangent", 14, 2, 15, 1))
sketch4.addConstraint(Sketcher.Constraint("Tangent", 15, 2, 8, 1))
sketch4.addConstraint(Sketcher.Constraint("Vertical", 0))
sketch4.addConstraint(Sketcher.Constraint("Horizontal", 2))
sketch4.addConstraint(Sketcher.Constraint("Vertical", 4))
sketch4.addConstraint(Sketcher.Constraint("Horizontal", 6))
sketch4.addConstraint(Sketcher.Constraint("Horizontal", 8))
sketch4.addConstraint(Sketcher.Constraint("Vertical", 10))
sketch4.addConstraint(Sketcher.Constraint("Horizontal", 12))
sketch4.addConstraint(Sketcher.Constraint("Vertical", 14))
sketch4.addConstraint(Sketcher.Constraint("Equal", 3, 5))
sketch4.addConstraint(Sketcher.Constraint("Equal", 1, 7))
sketch4.addConstraint(Sketcher.Constraint("Equal", 5, 9))
sketch4.addConstraint(Sketcher.Constraint("Equal", 9, 11))
sketch4.addConstraint(Sketcher.Constraint("Equal", 7, 13))
sketch4.addConstraint(Sketcher.Constraint("Equal", 13, 15))
sketch4.addConstraint(Sketcher.Constraint("Symmetric", 3, 3, 9, 3, -1, 1))
sketch4.addConstraint(Sketcher.Constraint("Symmetric", 7, 3, 13, 3, -1, 1))
sketch4.addConstraint(Sketcher.Constraint("Horizontal", 5, 3, 9, 3))
sketch4.addConstraint(Sketcher.Constraint("Radius", 3, Q("1 mm")))
sketch4.addConstraint(Sketcher.Constraint("DistanceY", 4, 1, 4, 2, Q("95.5 mm")))
sketch4.addConstraint(Sketcher.Constraint("DistanceX", 0, 2, -1, 1, Q("48 mm")))
sketch4.addConstraint(Sketcher.Constraint("Radius", 1, Q("3.175 mm")))
sketch4.addConstraint(Sketcher.Constraint("DistanceX", 5, 3, 9, 3, Q("87 mm")))
pocket3 = body.newObject("PartDesign::Pocket", "Pocket002")
pocket3.Profile = sketch4
pocket3.Length = 5.5

sketch5 = body.newObject("Sketcher::SketchObject", "Sketch004")
sketch5.AttachmentSupport = (doc.getObject("YZ_Plane"), [""])
sketch5.MapMode = "FlatFace"
sketch5.addGeometry(Part.ArcOfCircle(Part.Circle(V(27.8, -41.8, 0), V(0, 0, 1), 10), math.radians(-90), math.radians(-60)), False)
sketch5.addGeometry(Part.LineSegment(V(32.8, -50.4, 0), V(36.5, -48.3, 0)), False)
sketch5.addGeometry(Part.ArcOfCircle(Part.Circle(V(38.5, -51.8, 0), V(0, 0, 1), 4), math.radians(0), math.radians(120)), False)
sketch5.addGeometry(Part.LineSegment(V(42.5, -51.8, 0), V(27.8, -51.8, 0)), False)
sketch5.addGeometry(Part.ArcOfCircle(Part.Circle(V(-27.8, -41.8, 0), V(0, 0, 1), 10), math.radians(-120), math.radians(-90)), False)
sketch5.addGeometry(Part.LineSegment(V(-27.8, -51.8, 0), V(-42.5, -51.8, 0)), False)
sketch5.addGeometry(Part.ArcOfCircle(Part.Circle(V(-38.5, -51.8, 0), V(0, 0, 1), 4), math.radians(60), math.radians(180)), False)
sketch5.addGeometry(Part.LineSegment(V(-36.5, -48.3, 0), V(-32.8, -50.4, 0)), False)
sketch5.addConstraint(Sketcher.Constraint("Tangent", 0, 2, 1, 1))
sketch5.addConstraint(Sketcher.Constraint("Tangent", 1, 2, 2, 2))
sketch5.addConstraint(Sketcher.Constraint("Coincident", 2, 1, 3, 1))
sketch5.addConstraint(Sketcher.Constraint("Tangent", 3, 2, 0, 1))
sketch5.addConstraint(Sketcher.Constraint("Tangent", 4, 2, 5, 1))
sketch5.addConstraint(Sketcher.Constraint("Coincident", 5, 2, 6, 2))
sketch5.addConstraint(Sketcher.Constraint("Tangent", 6, 1, 7, 1))
sketch5.addConstraint(Sketcher.Constraint("Tangent", 7, 2, 4, 1))
sketch5.addConstraint(Sketcher.Constraint("Horizontal", 3))
sketch5.addConstraint(Sketcher.Constraint("Horizontal", 5))
sketch5.addConstraint(Sketcher.Constraint("Equal", 0, 4))
sketch5.addConstraint(Sketcher.Constraint("Equal", 2, 6))
sketch5.addConstraint(Sketcher.Constraint("Symmetric", 0, 3, 4, 3, -2))
sketch5.addConstraint(Sketcher.Constraint("Symmetric", 2, 3, 6, 3, -2))
sketch5.addConstraint(Sketcher.Constraint("Horizontal", 6, 3, 2, 1))
sketch5.addConstraint(Sketcher.Constraint("Radius", 0, Q("10 mm")))
sketch5.addConstraint(Sketcher.Constraint("Radius", 2, Q("4 mm")))
sketch5.addConstraint(Sketcher.Constraint("Angle", 1, Q("30 deg")))
sketch5.addConstraint(Sketcher.Constraint("DistanceX", 6, 3, 2, 3, Q("77 mm")))
sketch5.addConstraint(Sketcher.Constraint("DistanceY", 0, 3, -1, 1, Q("41.75 mm")))
pocket4 = body.newObject("PartDesign::Pocket", "Pocket003")
pocket4.Profile = sketch5
pocket4.Length = 10
pocket4.Reversed = True
doc.recompute()

mirrored = body.newObject("PartDesign::Mirrored", "Mirrored")
mirrored.Originals = [pocket4]
mirrored.MirrorPlane = (doc.getObject("XY_Plane"), [""])
body.Tip = mirrored

doc.recompute()
